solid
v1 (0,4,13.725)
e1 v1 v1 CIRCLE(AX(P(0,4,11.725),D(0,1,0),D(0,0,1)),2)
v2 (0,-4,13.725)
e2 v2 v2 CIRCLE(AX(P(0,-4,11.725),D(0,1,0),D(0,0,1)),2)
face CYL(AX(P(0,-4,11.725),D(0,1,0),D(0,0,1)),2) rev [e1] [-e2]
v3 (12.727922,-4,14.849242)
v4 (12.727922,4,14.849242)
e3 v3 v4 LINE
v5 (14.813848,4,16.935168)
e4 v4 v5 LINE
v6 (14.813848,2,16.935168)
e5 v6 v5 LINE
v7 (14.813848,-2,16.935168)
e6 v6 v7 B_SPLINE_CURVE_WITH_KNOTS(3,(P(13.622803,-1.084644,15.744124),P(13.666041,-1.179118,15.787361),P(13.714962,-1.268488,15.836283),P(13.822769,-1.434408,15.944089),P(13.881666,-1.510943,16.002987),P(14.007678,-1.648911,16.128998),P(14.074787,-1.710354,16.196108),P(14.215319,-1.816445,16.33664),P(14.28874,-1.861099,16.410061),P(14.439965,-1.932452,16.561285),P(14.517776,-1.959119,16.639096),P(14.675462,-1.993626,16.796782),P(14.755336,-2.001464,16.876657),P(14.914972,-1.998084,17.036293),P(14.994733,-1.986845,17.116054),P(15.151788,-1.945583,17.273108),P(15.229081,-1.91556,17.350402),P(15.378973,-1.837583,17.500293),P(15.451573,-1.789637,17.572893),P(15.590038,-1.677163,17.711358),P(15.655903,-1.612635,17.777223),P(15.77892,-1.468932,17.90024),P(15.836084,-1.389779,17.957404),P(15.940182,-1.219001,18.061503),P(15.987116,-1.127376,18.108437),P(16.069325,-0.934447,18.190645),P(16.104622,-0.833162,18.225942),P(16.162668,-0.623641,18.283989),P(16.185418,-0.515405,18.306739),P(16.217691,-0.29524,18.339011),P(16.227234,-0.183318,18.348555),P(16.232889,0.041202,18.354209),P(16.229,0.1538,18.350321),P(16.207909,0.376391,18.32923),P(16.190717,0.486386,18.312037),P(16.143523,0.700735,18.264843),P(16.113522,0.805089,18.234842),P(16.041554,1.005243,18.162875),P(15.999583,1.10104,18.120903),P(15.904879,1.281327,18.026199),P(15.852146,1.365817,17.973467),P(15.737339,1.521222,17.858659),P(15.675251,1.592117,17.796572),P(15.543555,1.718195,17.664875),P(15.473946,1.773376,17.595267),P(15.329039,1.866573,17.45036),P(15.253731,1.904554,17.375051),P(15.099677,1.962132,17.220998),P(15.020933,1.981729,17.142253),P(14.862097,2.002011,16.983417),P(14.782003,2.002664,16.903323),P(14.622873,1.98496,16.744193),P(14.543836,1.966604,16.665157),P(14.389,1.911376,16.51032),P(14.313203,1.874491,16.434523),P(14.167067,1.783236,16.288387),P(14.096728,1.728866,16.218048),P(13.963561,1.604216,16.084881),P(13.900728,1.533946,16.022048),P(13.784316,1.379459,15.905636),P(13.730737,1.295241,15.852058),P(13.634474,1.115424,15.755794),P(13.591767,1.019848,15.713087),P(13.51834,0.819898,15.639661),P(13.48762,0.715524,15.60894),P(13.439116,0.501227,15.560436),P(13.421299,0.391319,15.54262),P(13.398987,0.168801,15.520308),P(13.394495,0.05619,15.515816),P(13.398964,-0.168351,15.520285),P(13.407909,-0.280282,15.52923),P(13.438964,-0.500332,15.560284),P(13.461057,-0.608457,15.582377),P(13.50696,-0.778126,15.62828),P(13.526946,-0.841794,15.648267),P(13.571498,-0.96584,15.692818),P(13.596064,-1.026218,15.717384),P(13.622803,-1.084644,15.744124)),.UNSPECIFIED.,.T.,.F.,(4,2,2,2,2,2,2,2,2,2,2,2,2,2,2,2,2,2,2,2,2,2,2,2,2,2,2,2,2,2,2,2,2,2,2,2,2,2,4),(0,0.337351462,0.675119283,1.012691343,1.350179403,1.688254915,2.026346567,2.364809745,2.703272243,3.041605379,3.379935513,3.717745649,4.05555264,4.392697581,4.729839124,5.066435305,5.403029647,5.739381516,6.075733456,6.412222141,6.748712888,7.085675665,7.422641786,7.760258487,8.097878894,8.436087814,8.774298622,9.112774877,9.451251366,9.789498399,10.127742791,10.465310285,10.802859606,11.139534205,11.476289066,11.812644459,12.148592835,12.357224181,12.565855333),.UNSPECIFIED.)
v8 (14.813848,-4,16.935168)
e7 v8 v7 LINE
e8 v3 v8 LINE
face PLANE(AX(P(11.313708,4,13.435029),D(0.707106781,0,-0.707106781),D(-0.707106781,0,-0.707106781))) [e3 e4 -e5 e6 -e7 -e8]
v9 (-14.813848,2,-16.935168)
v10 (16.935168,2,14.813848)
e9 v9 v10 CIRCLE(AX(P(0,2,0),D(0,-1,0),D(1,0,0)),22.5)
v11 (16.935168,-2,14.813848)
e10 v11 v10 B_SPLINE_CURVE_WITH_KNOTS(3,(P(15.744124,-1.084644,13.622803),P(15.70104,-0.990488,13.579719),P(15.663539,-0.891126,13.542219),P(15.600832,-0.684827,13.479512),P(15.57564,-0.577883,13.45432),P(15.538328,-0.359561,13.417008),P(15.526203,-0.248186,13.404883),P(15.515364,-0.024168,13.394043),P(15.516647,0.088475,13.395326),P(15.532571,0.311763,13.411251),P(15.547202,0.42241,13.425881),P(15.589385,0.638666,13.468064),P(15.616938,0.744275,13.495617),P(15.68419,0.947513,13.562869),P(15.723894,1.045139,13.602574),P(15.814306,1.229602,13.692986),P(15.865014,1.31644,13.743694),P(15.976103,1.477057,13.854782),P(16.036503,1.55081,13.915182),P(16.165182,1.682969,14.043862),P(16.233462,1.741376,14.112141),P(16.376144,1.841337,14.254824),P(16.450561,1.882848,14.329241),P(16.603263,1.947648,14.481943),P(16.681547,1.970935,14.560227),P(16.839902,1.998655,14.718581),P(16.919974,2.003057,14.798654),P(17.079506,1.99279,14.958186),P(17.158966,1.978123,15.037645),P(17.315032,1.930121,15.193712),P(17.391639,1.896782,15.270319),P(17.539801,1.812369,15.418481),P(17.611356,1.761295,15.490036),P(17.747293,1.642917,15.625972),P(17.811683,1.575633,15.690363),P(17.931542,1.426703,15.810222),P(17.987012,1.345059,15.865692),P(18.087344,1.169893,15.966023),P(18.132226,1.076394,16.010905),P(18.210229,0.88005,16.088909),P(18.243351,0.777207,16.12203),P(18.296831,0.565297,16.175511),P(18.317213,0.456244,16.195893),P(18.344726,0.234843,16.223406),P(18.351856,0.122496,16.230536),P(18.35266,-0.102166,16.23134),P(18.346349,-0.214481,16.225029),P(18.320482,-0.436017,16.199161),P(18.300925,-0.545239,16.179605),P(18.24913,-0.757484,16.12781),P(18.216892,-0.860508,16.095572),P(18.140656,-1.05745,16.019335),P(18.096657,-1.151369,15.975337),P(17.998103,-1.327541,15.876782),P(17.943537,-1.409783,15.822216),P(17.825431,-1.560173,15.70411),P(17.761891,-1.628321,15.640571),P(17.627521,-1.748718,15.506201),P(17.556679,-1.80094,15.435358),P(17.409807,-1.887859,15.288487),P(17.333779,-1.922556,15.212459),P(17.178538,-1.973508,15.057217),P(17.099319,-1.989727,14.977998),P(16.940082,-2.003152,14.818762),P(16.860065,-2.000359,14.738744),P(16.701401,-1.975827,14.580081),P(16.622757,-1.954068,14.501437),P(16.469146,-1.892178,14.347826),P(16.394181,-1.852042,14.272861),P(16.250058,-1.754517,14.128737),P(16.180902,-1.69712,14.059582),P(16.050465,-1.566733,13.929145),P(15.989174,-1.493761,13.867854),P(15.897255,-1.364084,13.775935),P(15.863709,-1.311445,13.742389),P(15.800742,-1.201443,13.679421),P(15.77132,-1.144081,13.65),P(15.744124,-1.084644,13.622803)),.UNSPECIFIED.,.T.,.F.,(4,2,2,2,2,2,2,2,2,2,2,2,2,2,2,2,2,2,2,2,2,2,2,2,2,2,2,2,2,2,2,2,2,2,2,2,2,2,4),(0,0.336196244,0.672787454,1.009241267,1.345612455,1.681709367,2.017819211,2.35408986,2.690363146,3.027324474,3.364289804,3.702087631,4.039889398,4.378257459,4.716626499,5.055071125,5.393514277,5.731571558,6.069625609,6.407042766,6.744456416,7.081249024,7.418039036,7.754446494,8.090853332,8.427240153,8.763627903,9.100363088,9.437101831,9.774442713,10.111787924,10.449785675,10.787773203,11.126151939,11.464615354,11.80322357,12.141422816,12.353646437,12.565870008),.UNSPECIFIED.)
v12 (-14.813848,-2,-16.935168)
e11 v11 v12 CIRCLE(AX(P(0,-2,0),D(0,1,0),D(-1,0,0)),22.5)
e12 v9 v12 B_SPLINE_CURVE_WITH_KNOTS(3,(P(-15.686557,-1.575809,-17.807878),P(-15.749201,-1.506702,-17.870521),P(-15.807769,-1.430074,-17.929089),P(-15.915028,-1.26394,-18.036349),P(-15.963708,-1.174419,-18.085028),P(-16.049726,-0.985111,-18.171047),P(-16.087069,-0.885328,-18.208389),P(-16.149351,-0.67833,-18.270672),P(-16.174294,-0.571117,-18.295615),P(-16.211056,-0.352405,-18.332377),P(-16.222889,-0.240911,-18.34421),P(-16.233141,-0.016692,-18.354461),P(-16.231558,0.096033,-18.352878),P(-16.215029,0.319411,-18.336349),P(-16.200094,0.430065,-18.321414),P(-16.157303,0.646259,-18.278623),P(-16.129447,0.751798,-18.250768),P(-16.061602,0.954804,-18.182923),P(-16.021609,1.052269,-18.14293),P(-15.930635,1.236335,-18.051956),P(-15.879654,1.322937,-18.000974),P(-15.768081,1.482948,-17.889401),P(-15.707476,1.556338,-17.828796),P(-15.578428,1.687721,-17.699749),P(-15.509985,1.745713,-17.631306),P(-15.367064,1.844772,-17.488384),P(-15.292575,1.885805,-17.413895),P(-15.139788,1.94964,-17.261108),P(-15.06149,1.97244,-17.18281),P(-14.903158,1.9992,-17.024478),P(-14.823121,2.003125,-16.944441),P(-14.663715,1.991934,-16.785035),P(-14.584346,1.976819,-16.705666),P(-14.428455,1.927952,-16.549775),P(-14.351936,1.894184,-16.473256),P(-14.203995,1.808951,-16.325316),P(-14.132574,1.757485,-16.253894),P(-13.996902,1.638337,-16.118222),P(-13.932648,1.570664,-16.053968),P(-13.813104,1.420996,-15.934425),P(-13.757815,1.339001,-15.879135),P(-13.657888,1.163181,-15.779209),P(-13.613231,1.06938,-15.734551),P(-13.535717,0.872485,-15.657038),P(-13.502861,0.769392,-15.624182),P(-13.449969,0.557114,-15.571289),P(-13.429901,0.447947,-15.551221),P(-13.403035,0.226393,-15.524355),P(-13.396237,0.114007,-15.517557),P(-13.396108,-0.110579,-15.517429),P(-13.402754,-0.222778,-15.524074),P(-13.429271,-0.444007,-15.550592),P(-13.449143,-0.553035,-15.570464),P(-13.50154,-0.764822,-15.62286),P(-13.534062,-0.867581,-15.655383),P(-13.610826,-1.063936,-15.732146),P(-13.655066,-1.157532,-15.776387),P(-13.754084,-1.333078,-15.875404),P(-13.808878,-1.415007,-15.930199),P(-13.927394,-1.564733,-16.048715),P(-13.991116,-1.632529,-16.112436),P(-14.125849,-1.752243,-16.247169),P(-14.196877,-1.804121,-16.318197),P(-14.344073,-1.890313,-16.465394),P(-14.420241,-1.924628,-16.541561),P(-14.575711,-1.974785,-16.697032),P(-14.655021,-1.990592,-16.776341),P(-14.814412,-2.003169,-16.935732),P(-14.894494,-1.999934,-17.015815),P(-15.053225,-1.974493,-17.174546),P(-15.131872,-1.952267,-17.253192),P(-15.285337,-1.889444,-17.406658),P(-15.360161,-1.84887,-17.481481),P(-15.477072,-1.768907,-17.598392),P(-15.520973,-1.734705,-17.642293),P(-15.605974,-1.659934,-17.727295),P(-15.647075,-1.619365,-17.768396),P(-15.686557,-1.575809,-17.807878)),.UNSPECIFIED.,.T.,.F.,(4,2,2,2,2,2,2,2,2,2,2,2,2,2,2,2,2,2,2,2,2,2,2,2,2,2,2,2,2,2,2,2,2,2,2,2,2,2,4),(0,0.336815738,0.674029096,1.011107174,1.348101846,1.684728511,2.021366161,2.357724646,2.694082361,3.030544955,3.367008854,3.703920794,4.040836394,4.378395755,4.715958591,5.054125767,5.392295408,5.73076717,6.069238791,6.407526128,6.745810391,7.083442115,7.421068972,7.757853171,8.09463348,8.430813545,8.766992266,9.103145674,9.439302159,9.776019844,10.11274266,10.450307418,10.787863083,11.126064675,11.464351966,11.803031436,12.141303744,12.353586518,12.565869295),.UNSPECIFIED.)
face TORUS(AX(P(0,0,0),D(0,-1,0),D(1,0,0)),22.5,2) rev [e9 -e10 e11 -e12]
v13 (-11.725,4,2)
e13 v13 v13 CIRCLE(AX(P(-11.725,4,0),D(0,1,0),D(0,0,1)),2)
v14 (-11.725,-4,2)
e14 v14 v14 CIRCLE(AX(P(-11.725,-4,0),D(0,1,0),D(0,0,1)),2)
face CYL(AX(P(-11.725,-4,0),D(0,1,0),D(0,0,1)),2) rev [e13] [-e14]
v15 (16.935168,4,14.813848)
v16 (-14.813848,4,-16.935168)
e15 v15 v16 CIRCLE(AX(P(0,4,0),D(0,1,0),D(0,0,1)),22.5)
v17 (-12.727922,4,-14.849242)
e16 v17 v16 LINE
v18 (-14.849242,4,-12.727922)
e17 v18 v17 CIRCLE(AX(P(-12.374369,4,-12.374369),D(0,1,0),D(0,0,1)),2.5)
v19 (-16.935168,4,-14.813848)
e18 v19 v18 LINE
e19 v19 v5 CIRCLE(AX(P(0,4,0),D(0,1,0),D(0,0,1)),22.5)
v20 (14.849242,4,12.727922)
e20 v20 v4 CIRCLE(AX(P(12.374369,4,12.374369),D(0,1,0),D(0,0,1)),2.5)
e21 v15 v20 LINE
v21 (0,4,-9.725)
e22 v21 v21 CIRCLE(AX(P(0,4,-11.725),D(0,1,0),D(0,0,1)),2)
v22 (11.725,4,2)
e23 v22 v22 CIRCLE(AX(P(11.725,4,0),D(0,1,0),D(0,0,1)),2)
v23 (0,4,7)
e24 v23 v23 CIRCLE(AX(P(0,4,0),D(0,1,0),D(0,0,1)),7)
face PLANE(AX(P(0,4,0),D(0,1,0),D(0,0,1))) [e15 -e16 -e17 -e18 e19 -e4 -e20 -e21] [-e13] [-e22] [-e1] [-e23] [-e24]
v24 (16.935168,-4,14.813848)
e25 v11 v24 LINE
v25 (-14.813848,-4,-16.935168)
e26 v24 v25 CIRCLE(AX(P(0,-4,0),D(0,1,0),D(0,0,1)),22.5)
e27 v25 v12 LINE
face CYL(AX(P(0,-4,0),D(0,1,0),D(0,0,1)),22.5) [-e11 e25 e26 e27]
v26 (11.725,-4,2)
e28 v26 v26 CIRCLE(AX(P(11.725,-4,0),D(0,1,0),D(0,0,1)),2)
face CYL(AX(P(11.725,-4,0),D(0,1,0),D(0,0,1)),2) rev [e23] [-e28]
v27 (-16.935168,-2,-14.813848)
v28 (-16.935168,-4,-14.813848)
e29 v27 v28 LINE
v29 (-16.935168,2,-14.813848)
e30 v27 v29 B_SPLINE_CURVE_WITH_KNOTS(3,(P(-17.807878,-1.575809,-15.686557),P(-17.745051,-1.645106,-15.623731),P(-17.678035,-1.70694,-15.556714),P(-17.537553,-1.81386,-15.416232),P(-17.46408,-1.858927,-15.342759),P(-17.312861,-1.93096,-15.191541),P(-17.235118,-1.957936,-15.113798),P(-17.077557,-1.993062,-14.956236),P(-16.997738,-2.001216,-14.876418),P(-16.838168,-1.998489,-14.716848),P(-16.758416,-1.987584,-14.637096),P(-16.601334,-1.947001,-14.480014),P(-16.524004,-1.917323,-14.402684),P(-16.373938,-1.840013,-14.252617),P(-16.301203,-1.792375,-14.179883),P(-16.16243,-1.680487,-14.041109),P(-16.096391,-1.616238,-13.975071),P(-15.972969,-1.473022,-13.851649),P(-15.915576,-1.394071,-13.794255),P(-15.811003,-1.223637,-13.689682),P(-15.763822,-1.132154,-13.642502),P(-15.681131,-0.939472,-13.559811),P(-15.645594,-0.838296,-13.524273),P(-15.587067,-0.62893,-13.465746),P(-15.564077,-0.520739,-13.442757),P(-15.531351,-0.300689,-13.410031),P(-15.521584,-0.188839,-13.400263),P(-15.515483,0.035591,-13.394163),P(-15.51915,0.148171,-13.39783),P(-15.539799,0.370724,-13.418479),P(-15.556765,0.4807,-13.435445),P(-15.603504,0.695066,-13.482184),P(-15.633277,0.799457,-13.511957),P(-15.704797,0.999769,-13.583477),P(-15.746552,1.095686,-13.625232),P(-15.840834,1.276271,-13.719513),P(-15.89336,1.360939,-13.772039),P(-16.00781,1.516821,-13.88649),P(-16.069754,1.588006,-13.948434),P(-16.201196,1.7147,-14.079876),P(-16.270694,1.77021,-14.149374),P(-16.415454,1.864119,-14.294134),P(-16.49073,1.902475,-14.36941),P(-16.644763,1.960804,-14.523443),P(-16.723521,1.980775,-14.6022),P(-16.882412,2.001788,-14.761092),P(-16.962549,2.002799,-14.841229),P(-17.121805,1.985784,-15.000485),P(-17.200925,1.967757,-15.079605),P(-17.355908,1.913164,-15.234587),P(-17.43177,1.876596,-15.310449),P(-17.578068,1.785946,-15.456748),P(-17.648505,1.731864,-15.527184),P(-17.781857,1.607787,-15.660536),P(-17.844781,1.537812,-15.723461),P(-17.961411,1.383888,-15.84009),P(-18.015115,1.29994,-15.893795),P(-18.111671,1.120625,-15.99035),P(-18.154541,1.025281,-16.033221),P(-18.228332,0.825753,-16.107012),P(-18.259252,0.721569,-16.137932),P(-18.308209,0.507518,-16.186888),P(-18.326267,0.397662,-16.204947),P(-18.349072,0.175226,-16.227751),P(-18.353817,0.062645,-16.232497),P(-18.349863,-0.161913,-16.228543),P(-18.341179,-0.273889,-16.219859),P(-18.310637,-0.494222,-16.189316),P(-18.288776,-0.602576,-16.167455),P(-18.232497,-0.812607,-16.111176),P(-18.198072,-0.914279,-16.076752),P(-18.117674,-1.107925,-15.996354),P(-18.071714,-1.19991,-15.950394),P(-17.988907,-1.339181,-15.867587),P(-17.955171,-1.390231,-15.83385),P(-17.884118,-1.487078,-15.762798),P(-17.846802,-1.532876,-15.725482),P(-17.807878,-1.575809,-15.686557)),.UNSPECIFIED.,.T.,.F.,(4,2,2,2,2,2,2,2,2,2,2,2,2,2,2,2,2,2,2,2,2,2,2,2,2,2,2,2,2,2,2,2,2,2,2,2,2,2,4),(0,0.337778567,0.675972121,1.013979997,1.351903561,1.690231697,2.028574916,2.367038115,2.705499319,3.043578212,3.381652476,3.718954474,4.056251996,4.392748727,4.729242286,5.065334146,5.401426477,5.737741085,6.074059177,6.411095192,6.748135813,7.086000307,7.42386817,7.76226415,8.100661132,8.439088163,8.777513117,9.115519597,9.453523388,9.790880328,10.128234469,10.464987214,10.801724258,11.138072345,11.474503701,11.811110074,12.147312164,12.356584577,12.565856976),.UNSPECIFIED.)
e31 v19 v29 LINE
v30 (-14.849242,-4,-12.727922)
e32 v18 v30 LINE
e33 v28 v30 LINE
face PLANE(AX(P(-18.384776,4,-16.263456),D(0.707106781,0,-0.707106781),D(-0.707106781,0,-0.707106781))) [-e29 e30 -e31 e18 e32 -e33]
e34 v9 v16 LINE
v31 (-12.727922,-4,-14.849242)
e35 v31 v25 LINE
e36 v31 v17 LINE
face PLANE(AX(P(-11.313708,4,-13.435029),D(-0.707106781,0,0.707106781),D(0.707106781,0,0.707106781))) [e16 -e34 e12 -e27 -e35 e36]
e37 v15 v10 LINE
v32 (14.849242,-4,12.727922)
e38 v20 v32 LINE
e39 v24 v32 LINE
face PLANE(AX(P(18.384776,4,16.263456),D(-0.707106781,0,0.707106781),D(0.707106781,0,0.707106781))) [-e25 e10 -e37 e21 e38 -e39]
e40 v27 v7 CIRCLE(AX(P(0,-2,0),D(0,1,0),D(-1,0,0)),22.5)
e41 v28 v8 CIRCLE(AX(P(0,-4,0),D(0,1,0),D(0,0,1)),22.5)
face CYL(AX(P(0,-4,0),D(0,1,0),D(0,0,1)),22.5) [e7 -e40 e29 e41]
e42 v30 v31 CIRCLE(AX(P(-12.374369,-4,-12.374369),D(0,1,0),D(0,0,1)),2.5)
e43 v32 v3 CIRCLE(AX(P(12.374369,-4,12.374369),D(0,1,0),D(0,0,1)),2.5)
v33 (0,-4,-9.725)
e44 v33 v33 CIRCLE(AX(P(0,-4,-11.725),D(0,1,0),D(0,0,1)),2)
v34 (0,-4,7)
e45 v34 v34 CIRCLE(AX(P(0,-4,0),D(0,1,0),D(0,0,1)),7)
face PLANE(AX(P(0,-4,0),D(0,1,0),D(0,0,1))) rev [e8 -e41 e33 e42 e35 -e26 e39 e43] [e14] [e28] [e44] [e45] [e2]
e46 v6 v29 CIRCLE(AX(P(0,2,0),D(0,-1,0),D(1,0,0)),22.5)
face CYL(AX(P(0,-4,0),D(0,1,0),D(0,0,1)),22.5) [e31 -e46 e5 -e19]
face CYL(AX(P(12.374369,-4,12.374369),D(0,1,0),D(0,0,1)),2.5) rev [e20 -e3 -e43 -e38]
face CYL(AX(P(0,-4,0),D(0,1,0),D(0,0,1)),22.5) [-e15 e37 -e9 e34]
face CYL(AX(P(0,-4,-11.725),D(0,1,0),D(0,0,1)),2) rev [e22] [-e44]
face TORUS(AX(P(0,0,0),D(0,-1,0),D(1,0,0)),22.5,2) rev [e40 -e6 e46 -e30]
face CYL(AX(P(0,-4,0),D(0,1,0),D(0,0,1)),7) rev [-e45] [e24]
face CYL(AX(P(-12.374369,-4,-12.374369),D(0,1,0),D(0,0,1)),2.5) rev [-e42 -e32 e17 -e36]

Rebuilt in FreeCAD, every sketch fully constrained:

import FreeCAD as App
import Part
import Sketcher
Q = App.Units.Quantity

doc = App.newDocument("Part")
params = doc.addObject("Spreadsheet::Sheet", "Params")
for row, (alias, value) in enumerate([
    ("sketch1_diameter", "45 mm"),
    ("sketch1_diameter2", "5 mm"),
    ("sketch1_diameter3", "4 mm"),
    ("sketch1_diameter4", "14 mm"),
    ("pad1_length", "4 mm"),
    ("pad1_length2", "4 mm"),
    ("sketch2_diameter", "4 mm"),
    ("groove_angle", "360 deg"),
    ("sketch3_length", "7 mm"),
    ("sketch3_length2", "3 mm"),
], start=1):
    params.set(f"A{row}", alias)
    params.set(f"B{row}", "=" + value)
    params.setAlias(f"B{row}", alias)

body = doc.addObject("PartDesign::Body", "Body")

# Sketch on XZ plane
sketch1 = body.newObject("Sketcher::SketchObject", "Sketch")
sketch1.AttachmentSupport = (doc.getObject("XZ_Plane"), [""])
sketch1.MapMode = "FlatFace"
sketch1.addGeometry([
    Part.Circle(App.Vector(0, 0, 0), App.Vector(0, 0, 1), 22.5),  # 0
    Part.Circle(App.Vector(-12.374369, -12.374369, 0), App.Vector(0, 0, 1), 2.5),  # 1
    Part.Circle(App.Vector(0, -11.725, 0), App.Vector(0, 0, 1), 2),  # 2
    Part.Circle(App.Vector(-11.725, 0, 0), App.Vector(0, 0, 1), 2),  # 3
    Part.Circle(App.Vector(11.725, 0, 0), App.Vector(0, 0, 1), 2),  # 4
    Part.Circle(App.Vector(0, 0, 0), App.Vector(0, 0, 1), 7),  # 5
    Part.Circle(App.Vector(0, 11.725, 0), App.Vector(0, 0, 1), 2),  # 6
    Part.Circle(App.Vector(12.374369, 12.374369, 0), App.Vector(0, 0, 1), 2.5),  # 7
], False)
sketch1.addConstraint([
    Sketcher.Constraint("Coincident", 0, 3, -1, 1),
    Sketcher.Constraint("Coincident", 5, 3, -1, 1),
    Sketcher.Constraint("Equal", 2, 3),
    Sketcher.Constraint("Equal", 3, 4),
    Sketcher.Constraint("Equal", 4, 6),
    Sketcher.Constraint("Equal", 1, 7),
    Sketcher.Constraint("Symmetric", 3, 3, 4, 3, -1, 1),
    Sketcher.Constraint("Symmetric", 2, 3, 6, 3, -1, 1),
    Sketcher.Constraint("Symmetric", 1, 3, 7, 3, -1, 1),
    Sketcher.Constraint("PointOnObject", 2, 3, -2),
    Sketcher.Constraint("PointOnObject", 3, 3, -1),
    Sketcher.Constraint("Diameter", 0, Q("45 mm")),
    Sketcher.Constraint("Diameter", 1, Q("5 mm")),
    Sketcher.Constraint("Diameter", 2, Q("4 mm")),
    Sketcher.Constraint("Diameter", 5, Q("14 mm")),
    Sketcher.Constraint("DistanceX", 3, 3, 4, 3, Q("23.45 mm")),
    Sketcher.Constraint("DistanceY", 2, 3, 6, 3, Q("23.45 mm")),
    Sketcher.Constraint("DistanceX", 1, 3, -1, 1, Q("12.374369 mm")),
    Sketcher.Constraint("DistanceY", 1, 3, -1, 1, Q("12.374369 mm")),
])
sketch1.setExpression("Constraints[11]", "Params.sketch1_diameter")
sketch1.setExpression("Constraints[12]", "Params.sketch1_diameter2")
sketch1.setExpression("Constraints[13]", "Params.sketch1_diameter3")
sketch1.setExpression("Constraints[14]", "Params.sketch1_diameter4")
pad1 = body.newObject("PartDesign::Pad", "Pad")
pad1.Profile = sketch1
pad1.Type = "TwoLengths"
pad1.setExpression("Length", "Params.pad1_length")
pad1.setExpression("Length2", "Params.pad1_length2")
pad1.Reversed = True

# Sketch on XY plane
sketch2 = body.newObject("Sketcher::SketchObject", "Sketch001")
sketch2.AttachmentSupport = (doc.getObject("XY_Plane"), [""])
sketch2.MapMode = "FlatFace"
sketch2.addGeometry(Part.Circle(App.Vector(22.5, 0, 0), App.Vector(0, 0, 1), 2), False)
sketch2.addConstraint([
    Sketcher.Constraint("PointOnObject", 0, 3, -1),
    Sketcher.Constraint("Diameter", 0, Q("4 mm")),
    Sketcher.Constraint("DistanceX", -1, 1, 0, 3, Q("22.5 mm")),
])
sketch2.setExpression("Constraints[1]", "Params.sketch2_diameter")
groove = body.newObject("PartDesign::Groove", "Groove")
groove.Profile = sketch2
groove.ReferenceAxis = (sketch2, ["V_Axis"])
groove.setExpression("Angle", "Params.groove_angle")

# Sketch on XZ plane
sketch3 = body.newObject("Sketcher::SketchObject", "Sketch002")
sketch3.AttachmentSupport = (doc.getObject("XZ_Plane"), [""])
sketch3.MapMode = "FlatFace"
sketch3.addGeometry([
    Part.LineSegment(App.Vector(-18.384776, -16.263456, 0), App.Vector(-13.435029, -11.313708, 0)),  # 0
    Part.LineSegment(App.Vector(-13.435029, -11.313708, 0), App.Vector(-11.313708, -13.435029, 0)),  # 1
    Part.LineSegment(App.Vector(-11.313708, -13.435029, 0), App.Vector(-16.263456, -18.384776, 0)),  # 2
    Part.LineSegment(App.Vector(-16.263456, -18.384776, 0), App.Vector(-18.384776, -16.263456, 0)),  # 3
    Part.LineSegment(App.Vector(13.435029, 11.313708, 0), App.Vector(11.313708, 13.435029, 0)),  # 4
    Part.LineSegment(App.Vector(11.313708, 13.435029, 0), App.Vector(16.263456, 18.384776, 0)),  # 5
    Part.LineSegment(App.Vector(16.263456, 18.384776, 0), App.Vector(18.384776, 16.263456, 0)),  # 6
    Part.LineSegment(App.Vector(18.384776, 16.263456, 0), App.Vector(13.435029, 11.313708, 0)),  # 7
], False)
sketch3.addConstraint([
    Sketcher.Constraint("Coincident", 0, 2, 1, 1),
    Sketcher.Constraint("Coincident", 1, 2, 2, 1),
    Sketcher.Constraint("Coincident", 2, 2, 3, 1),
    Sketcher.Constraint("Coincident", 3, 2, 0, 1),
    Sketcher.Constraint("Coincident", 4, 2, 5, 1),
    Sketcher.Constraint("Coincident", 5, 2, 6, 1),
    Sketcher.Constraint("Coincident", 6, 2, 7, 1),
    Sketcher.Constraint("Coincident", 7, 2, 4, 1),
    Sketcher.Constraint("Symmetric", 1, 2, 4, 2, -1, 1),
    Sketcher.Constraint("Symmetric", 2, 2, 5, 2, -1, 1),
    Sketcher.Constraint("Symmetric", 3, 2, 6, 2, -1, 1),
    Sketcher.Constraint("Symmetric", 0, 2, 7, 2, -1, 1),
    Sketcher.Constraint("Perpendicular", 0, 1),
    Sketcher.Constraint("Perpendicular", 1, 2),
    Sketcher.Constraint("Perpendicular", 2, 3),
    Sketcher.Constraint("Angle", 0, Q("45 deg")),
    Sketcher.Constraint("Distance", 0, Q("7 mm")),
    Sketcher.Constraint("Distance", 1, Q("3 mm")),
    Sketcher.Constraint("DistanceX", 0, 2, -1, 1, Q("13.435029 mm")),
    Sketcher.Constraint("DistanceY", 0, 2, -1, 1, Q("11.313708 mm")),
])
sketch3.setExpression("Constraints[16]", "Params.sketch3_length")
sketch3.setExpression("Constraints[17]", "Params.sketch3_length2")
pocket1 = body.newObject("PartDesign::Pocket", "Pocket")
pocket1.Profile = sketch3
pocket1.Type = "ThroughAll"
pocket1.Midplane = True

doc.recompute()
